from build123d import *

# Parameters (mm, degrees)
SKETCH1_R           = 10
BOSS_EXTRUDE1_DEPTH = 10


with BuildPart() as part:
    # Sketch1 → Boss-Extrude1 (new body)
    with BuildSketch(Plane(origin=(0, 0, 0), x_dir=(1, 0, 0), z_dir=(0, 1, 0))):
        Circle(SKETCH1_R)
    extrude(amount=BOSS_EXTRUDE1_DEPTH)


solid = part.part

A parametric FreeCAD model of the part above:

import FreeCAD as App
import Part
import Sketcher

doc = App.newDocument("Part")
body = doc.addObject("PartDesign::Body", "Body")

sketch1 = body.newObject("Sketcher::SketchObject", "Sketch")
sketch1.AttachmentSupport = (doc.getObject("XZ_Plane"), [""])
sketch1.MapMode = "FlatFace"
sketch1.addGeometry(Part.Circle(App.Vector(0, 0, 0), App.Vector(0, 0, 1), 10), False)
sketch1.addConstraint([
    Sketcher.Constraint("Coincident", 0, 3, -1, 1),
    Sketcher.Constraint("Diameter", 0, 20.0),
])
pad1 = body.newObject("PartDesign::Pad", "Pad")
pad1.Profile = sketch1
pad1.Length = 10
pad1.Reversed = True

doc.recompute()
